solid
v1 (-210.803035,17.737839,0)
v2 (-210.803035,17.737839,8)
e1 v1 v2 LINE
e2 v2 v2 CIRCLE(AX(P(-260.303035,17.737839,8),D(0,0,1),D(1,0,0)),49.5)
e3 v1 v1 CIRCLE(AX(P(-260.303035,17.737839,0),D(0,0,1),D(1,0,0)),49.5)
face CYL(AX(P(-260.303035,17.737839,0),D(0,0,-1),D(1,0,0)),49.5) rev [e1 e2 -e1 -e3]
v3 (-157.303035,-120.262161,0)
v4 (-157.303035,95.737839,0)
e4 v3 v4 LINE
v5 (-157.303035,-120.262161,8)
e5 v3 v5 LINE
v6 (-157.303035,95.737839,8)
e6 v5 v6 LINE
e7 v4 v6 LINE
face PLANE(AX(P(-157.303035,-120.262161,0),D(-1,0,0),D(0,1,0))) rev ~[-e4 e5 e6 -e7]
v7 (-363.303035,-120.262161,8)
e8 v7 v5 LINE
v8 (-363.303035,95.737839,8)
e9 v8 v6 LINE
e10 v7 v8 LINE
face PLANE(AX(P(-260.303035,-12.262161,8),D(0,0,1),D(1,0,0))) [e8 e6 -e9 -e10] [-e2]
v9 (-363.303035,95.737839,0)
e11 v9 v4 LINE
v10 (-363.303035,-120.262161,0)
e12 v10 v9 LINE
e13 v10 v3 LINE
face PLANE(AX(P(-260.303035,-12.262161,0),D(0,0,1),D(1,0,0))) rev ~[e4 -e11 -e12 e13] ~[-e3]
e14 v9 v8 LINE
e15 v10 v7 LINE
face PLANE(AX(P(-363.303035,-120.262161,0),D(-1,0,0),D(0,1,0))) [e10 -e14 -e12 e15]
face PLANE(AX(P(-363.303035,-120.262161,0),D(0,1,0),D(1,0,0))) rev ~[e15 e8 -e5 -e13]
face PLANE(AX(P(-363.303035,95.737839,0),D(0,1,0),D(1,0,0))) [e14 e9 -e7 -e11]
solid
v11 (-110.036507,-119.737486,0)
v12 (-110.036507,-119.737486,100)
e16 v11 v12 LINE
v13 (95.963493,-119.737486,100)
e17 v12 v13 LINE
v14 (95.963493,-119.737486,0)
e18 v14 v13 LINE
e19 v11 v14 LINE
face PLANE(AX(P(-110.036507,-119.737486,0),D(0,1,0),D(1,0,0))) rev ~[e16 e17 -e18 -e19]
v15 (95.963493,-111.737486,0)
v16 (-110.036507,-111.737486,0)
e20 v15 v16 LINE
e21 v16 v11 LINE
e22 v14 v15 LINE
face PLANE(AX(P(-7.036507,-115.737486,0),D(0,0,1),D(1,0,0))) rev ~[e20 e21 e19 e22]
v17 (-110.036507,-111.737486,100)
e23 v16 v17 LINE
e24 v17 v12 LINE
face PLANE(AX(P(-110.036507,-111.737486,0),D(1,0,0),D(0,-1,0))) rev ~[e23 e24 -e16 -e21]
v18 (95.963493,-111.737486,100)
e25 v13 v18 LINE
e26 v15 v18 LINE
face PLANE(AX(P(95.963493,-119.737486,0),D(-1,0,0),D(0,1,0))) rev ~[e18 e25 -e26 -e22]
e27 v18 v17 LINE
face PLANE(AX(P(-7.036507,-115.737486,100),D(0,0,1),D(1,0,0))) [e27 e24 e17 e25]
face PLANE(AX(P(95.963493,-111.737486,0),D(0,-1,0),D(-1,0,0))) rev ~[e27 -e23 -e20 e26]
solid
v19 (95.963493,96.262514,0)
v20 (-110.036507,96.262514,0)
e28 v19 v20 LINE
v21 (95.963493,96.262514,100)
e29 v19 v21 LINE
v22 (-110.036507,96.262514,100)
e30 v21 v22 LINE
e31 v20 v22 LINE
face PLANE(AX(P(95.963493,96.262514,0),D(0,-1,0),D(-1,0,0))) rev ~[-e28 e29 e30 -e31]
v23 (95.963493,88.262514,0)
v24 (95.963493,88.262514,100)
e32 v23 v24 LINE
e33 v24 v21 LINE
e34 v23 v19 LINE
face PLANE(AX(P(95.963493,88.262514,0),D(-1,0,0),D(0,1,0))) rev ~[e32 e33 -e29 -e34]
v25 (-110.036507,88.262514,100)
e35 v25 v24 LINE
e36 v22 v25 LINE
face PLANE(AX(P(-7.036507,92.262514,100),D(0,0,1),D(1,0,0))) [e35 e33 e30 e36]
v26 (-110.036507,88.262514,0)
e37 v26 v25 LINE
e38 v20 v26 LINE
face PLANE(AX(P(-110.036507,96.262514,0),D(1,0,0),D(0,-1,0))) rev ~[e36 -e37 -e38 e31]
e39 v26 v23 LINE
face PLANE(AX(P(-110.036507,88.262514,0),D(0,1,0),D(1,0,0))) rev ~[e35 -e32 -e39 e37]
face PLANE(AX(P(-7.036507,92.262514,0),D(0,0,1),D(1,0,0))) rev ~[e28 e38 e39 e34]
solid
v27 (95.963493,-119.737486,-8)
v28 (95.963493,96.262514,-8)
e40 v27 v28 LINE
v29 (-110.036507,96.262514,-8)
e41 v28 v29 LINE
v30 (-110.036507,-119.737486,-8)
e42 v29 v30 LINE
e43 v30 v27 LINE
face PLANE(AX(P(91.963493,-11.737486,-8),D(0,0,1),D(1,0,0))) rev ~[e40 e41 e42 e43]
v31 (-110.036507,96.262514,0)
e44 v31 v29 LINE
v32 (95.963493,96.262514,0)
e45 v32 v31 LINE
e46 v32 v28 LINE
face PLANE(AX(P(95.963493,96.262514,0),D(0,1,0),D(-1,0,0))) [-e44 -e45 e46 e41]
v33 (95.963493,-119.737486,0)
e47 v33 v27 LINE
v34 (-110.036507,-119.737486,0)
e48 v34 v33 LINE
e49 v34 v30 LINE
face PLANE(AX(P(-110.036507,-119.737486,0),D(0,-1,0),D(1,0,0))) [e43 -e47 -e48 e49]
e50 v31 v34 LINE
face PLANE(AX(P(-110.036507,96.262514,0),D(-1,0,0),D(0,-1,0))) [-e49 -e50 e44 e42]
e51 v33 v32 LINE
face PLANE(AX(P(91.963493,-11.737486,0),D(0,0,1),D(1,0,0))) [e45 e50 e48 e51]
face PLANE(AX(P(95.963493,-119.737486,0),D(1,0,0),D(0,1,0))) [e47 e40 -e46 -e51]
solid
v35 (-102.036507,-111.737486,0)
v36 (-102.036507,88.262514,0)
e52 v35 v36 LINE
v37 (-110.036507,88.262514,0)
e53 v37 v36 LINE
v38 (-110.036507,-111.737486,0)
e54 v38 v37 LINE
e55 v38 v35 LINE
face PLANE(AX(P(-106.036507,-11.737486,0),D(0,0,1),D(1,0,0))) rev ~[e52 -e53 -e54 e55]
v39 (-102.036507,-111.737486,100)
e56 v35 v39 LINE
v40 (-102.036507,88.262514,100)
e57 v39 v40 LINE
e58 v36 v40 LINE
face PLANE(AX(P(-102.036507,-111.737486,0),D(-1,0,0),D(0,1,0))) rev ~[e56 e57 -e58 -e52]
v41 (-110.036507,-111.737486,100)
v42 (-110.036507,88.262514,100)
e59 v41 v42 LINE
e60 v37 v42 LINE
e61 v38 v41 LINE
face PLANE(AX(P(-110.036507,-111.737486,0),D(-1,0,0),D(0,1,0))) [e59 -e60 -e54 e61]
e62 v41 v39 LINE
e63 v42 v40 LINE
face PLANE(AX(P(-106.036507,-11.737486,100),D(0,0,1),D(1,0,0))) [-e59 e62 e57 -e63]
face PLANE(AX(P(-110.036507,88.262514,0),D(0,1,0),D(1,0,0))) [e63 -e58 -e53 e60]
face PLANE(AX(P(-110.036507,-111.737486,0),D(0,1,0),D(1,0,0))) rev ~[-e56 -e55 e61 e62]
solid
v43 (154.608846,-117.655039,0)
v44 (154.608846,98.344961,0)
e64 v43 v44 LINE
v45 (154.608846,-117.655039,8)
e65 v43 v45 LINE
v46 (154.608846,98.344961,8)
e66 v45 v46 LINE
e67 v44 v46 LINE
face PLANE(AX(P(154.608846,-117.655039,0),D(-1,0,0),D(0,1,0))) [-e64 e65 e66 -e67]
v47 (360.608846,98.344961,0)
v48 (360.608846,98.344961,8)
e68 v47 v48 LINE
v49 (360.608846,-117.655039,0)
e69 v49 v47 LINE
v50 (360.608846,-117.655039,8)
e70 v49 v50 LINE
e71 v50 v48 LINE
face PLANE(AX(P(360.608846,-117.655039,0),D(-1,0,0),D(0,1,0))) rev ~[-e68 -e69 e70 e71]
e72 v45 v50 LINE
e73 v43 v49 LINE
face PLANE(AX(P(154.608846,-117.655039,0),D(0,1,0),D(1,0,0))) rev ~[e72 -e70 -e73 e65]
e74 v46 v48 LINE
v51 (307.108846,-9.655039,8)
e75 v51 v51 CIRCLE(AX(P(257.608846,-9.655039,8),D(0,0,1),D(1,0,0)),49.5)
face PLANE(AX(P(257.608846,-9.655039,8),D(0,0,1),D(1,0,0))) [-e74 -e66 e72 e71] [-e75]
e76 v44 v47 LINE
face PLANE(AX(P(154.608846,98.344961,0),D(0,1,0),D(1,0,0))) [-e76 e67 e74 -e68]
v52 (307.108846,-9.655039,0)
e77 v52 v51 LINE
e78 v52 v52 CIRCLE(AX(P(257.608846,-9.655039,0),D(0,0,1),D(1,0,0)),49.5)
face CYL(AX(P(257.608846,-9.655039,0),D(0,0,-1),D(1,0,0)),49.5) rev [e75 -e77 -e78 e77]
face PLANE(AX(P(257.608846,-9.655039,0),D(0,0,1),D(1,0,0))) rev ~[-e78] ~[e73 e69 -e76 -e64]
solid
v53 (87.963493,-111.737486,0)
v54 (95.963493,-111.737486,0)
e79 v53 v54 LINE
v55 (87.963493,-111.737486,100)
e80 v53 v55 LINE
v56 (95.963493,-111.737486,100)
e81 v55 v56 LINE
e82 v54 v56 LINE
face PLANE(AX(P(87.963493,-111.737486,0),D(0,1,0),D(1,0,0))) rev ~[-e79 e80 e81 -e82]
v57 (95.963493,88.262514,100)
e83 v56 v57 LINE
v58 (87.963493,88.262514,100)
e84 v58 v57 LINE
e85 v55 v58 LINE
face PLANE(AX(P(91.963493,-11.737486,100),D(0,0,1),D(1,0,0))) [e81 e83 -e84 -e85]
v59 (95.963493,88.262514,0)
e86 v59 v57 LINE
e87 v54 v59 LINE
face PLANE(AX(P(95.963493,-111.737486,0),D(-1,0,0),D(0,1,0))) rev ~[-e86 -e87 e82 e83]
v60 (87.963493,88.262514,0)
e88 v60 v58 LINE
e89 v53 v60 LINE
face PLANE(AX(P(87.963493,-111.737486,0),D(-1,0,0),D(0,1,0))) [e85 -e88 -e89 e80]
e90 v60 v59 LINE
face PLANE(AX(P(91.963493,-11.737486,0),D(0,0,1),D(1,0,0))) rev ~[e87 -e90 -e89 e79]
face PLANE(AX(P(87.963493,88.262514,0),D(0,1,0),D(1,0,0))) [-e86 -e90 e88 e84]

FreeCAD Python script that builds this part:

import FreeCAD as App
import Part
import Sketcher
Q = App.Units.Quantity

doc = App.newDocument("Part")
body = doc.addObject("PartDesign::Body", "Body")

sketch1 = body.newObject("Sketcher::SketchObject", "Sketch")
sketch1.AttachmentSupport = (doc.getObject("XY_Plane"), [""])
sketch1.MapMode = "FlatFace"
sketch1.addGeometry([
    Part.LineSegment(App.Vector(-110, 88, 0), App.Vector(96, 88, 0)),
    Part.LineSegment(App.Vector(96, 88, 0), App.Vector(96, 96, 0)),
    Part.LineSegment(App.Vector(96, 96, 0), App.Vector(-110, 96, 0)),
    Part.LineSegment(App.Vector(-110, 96, 0), App.Vector(-110, 88, 0)),
], False)
sketch1.addConstraint([
    Sketcher.Constraint("Coincident", 0, 2, 1, 1),
    Sketcher.Constraint("Coincident", 1, 2, 2, 1),
    Sketcher.Constraint("Coincident", 2, 2, 3, 1),
    Sketcher.Constraint("Coincident", 3, 2, 0, 1),
    Sketcher.Constraint("Horizontal", 0),
    Sketcher.Constraint("Vertical", 1),
    Sketcher.Constraint("Horizontal", 2),
    Sketcher.Constraint("Vertical", 3),
    Sketcher.Constraint("DistanceX", 0, 1, 0, 2, Q("206 mm")),
    Sketcher.Constraint("DistanceY", 1, 1, 1, 2, Q("8 mm")),
    Sketcher.Constraint("DistanceX", -1, 1, 0, 2, Q("95.963493 mm")),
    Sketcher.Constraint("DistanceY", -1, 1, 0, 2, Q("88.262514 mm")),
])
pad1 = body.newObject("PartDesign::Pad", "Pad")
pad1.Profile = sketch1
pad1.Length = 100
body2 = doc.addObject("PartDesign::Body", "Body001")

sketch2 = body2.newObject("Sketcher::SketchObject", "Sketch001")
sketch2.AttachmentSupport = (doc.getObject("XY_Plane001"), [""])
sketch2.MapMode = "FlatFace"
sketch2.addGeometry([
    Part.LineSegment(App.Vector(-110, -112, 0), App.Vector(-110, -120, 0)),
    Part.LineSegment(App.Vector(-110, -120, 0), App.Vector(96, -120, 0)),
    Part.LineSegment(App.Vector(96, -120, 0), App.Vector(96, -112, 0)),
    Part.LineSegment(App.Vector(96, -112, 0), App.Vector(-110, -112, 0)),
], False)
sketch2.addConstraint([
    Sketcher.Constraint("Coincident", 0, 2, 1, 1),
    Sketcher.Constraint("Coincident", 1, 2, 2, 1),
    Sketcher.Constraint("Coincident", 2, 2, 3, 1),
    Sketcher.Constraint("Coincident", 3, 2, 0, 1),
    Sketcher.Constraint("Vertical", 0),
    Sketcher.Constraint("Horizontal", 1),
    Sketcher.Constraint("Vertical", 2),
    Sketcher.Constraint("Horizontal", 3),
    Sketcher.Constraint("DistanceX", 1, 1, 1, 2, Q("206 mm")),
    Sketcher.Constraint("DistanceY", 0, 2, 0, 1, Q("8 mm")),
    Sketcher.Constraint("DistanceX", 0, 2, -1, 1, Q("110.036507 mm")),
    Sketcher.Constraint("DistanceY", 0, 2, -1, 1, Q("119.737486 mm")),
])
pad2 = body2.newObject("PartDesign::Pad", "Pad001")
pad2.Profile = sketch2
pad2.Length = 100
body3 = doc.addObject("PartDesign::Body", "Body002")

sketch3 = body3.newObject("Sketcher::SketchObject", "Sketch002")
sketch3.AttachmentSupport = (doc.getObject("XY_Plane002"), [""])
sketch3.MapMode = "FlatFace"
sketch3.addGeometry([
    Part.LineSegment(App.Vector(-110, 88, 0), App.Vector(-110, -112, 0)),
    Part.LineSegment(App.Vector(-110, -112, 0), App.Vector(-102, -112, 0)),
    Part.LineSegment(App.Vector(-102, -112, 0), App.Vector(-102, 88, 0)),
    Part.LineSegment(App.Vector(-102, 88, 0), App.Vector(-110, 88, 0)),
], False)
sketch3.addConstraint([
    Sketcher.Constraint("Coincident", 0, 2, 1, 1),
    Sketcher.Constraint("Coincident", 1, 2, 2, 1),
    Sketcher.Constraint("Coincident", 2, 2, 3, 1),
    Sketcher.Constraint("Coincident", 3, 2, 0, 1),
    Sketcher.Constraint("Vertical", 0),
    Sketcher.Constraint("Horizontal", 1),
    Sketcher.Constraint("Vertical", 2),
    Sketcher.Constraint("Horizontal", 3),
    Sketcher.Constraint("DistanceX", 1, 1, 1, 2, Q("8 mm")),
    Sketcher.Constraint("DistanceY", 0, 2, 0, 1, Q("200 mm")),
    Sketcher.Constraint("DistanceX", 0, 2, -1, 1, Q("110.036507 mm")),
    Sketcher.Constraint("DistanceY", 0, 2, -1, 1, Q("111.737486 mm")),
])
pad3 = body3.newObject("PartDesign::Pad", "Pad002")
pad3.Profile = sketch3
pad3.Length = 100
body4 = doc.addObject("PartDesign::Body", "Body003")

sketch4 = body4.newObject("Sketcher::SketchObject", "Sketch003")
sketch4.AttachmentSupport = (doc.getObject("XY_Plane003"), [""])
sketch4.MapMode = "FlatFace"
sketch4.addGeometry([
    Part.LineSegment(App.Vector(88, 88, 0), App.Vector(88, -112, 0)),
    Part.LineSegment(App.Vector(88, -112, 0), App.Vector(96, -112, 0)),
    Part.LineSegment(App.Vector(96, -112, 0), App.Vector(96, 88, 0)),
    Part.LineSegment(App.Vector(96, 88, 0), App.Vector(88, 88, 0)),
], False)
sketch4.addConstraint([
    Sketcher.Constraint("Coincident", 0, 2, 1, 1),
    Sketcher.Constraint("Coincident", 1, 2, 2, 1),
    Sketcher.Constraint("Coincident", 2, 2, 3, 1),
    Sketcher.Constraint("Coincident", 3, 2, 0, 1),
    Sketcher.Constraint("Vertical", 0),
    Sketcher.Constraint("Horizontal", 1),
    Sketcher.Constraint("Vertical", 2),
    Sketcher.Constraint("Horizontal", 3),
    Sketcher.Constraint("DistanceX", 1, 1, 1, 2, Q("8 mm")),
    Sketcher.Constraint("DistanceY", 0, 2, 0, 1, Q("200 mm")),
    Sketcher.Constraint("DistanceX", -1, 1, 0, 2, Q("87.963493 mm")),
    Sketcher.Constraint("DistanceY", 0, 2, -1, 1, Q("111.737486 mm")),
])
pad4 = body4.newObject("PartDesign::Pad", "Pad003")
pad4.Profile = sketch4
pad4.Length = 100
body5 = doc.addObject("PartDesign::Body", "Body004")

sketch5 = body5.newObject("Sketcher::SketchObject", "Sketch004")
sketch5.AttachmentSupport = (doc.getObject("XY_Plane004"), [""])
sketch5.MapMode = "FlatFace"
sketch5.addGeometry([
    Part.LineSegment(App.Vector(96, 96, 0), App.Vector(-110, 96, 0)),
    Part.LineSegment(App.Vector(-110, 96, 0), App.Vector(-110, -120, 0)),
    Part.LineSegment(App.Vector(-110, -120, 0), App.Vector(96, -120, 0)),
    Part.LineSegment(App.Vector(96, -120, 0), App.Vector(96, 96, 0)),
], False)
sketch5.addConstraint([
    Sketcher.Constraint("Coincident", 0, 2, 1, 1),
    Sketcher.Constraint("Coincident", 1, 2, 2, 1),
    Sketcher.Constraint("Coincident", 2, 2, 3, 1),
    Sketcher.Constraint("Coincident", 3, 2, 0, 1),
    Sketcher.Constraint("Horizontal", 0),
    Sketcher.Constraint("Vertical", 1),
    Sketcher.Constraint("Horizontal", 2),
    Sketcher.Constraint("Vertical", 3),
    Sketcher.Constraint("DistanceX", 0, 2, 0, 1, Q("206 mm")),
    Sketcher.Constraint("DistanceY", 1, 2, 1, 1, Q("216 mm")),
    Sketcher.Constraint("DistanceX", 0, 2, -1, 1, Q("110.036507 mm")),
    Sketcher.Constraint("DistanceY", -1, 1, 0, 2, Q("96.262514 mm")),
])
pad5 = body5.newObject("PartDesign::Pad", "Pad004")
pad5.Profile = sketch5
pad5.Length = 8
pad5.Reversed = True
body6 = doc.addObject("PartDesign::Body", "Body005")

sketch6 = body6.newObject("Sketcher::SketchObject", "Sketch005")
sketch6.AttachmentSupport = (doc.getObject("XY_Plane005"), [""])
sketch6.MapMode = "FlatFace"
sketch6.addGeometry([
    Part.LineSegment(App.Vector(-363, 96, 0), App.Vector(-363, -120, 0)),
    Part.LineSegment(App.Vector(-363, -120, 0), App.Vector(-157, -120, 0)),
    Part.LineSegment(App.Vector(-157, -120, 0), App.Vector(-157, 96, 0)),
    Part.LineSegment(App.Vector(-157, 96, 0), App.Vector(-363, 96, 0)),
    Part.Circle(App.Vector(-260, 18, 0), App.Vector(0, 0, 1), 50),
], False)
sketch6.addConstraint([
    Sketcher.Constraint("Coincident", 0, 2, 1, 1),
    Sketcher.Constraint("Coincident", 1, 2, 2, 1),
    Sketcher.Constraint("Coincident", 2, 2, 3, 1),
    Sketcher.Constraint("Coincident", 3, 2, 0, 1),
    Sketcher.Constraint("Vertical", 0),
    Sketcher.Constraint("Horizontal", 1),
    Sketcher.Constraint("Vertical", 2),
    Sketcher.Constraint("Horizontal", 3),
    Sketcher.Constraint("Diameter", 4, Q("99 mm")),
    Sketcher.Constraint("DistanceX", 1, 1, 1, 2, Q("206 mm")),
    Sketcher.Constraint("DistanceY", 0, 2, 0, 1, Q("216 mm")),
    Sketcher.Constraint("DistanceX", 0, 2, 4, 3, Q("103 mm")),
    Sketcher.Constraint("DistanceY", 0, 2, 4, 3, Q("138 mm")),
    Sketcher.Constraint("DistanceY", -1, 1, 4, 3, Q("17.737839 mm")),
    Sketcher.Constraint("DistanceX", 4, 3, -1, 1, Q("260.303035 mm")),
])
pad6 = body6.newObject("PartDesign::Pad", "Pad005")
pad6.Profile = sketch6
pad6.Length = 8
body7 = doc.addObject("PartDesign::Body", "Body006")

sketch7 = body7.newObject("Sketcher::SketchObject", "Sketch006")
sketch7.AttachmentSupport = (doc.getObject("XY_Plane006"), [""])
sketch7.MapMode = "FlatFace"
sketch7.addGeometry([
    Part.LineSegment(App.Vector(155, 98, 0), App.Vector(155, -118, 0)),
    Part.LineSegment(App.Vector(155, -118, 0), App.Vector(361, -118, 0)),
    Part.LineSegment(App.Vector(361, -118, 0), App.Vector(361, 98, 0)),
    Part.LineSegment(App.Vector(361, 98, 0), App.Vector(155, 98, 0)),
    Part.Circle(App.Vector(258, -10, 0), App.Vector(0, 0, 1), 50),
], False)
sketch7.addConstraint([
    Sketcher.Constraint("Coincident", 0, 2, 1, 1),
    Sketcher.Constraint("Coincident", 1, 2, 2, 1),
    Sketcher.Constraint("Coincident", 2, 2, 3, 1),
    Sketcher.Constraint("Coincident", 3, 2, 0, 1),
    Sketcher.Constraint("Vertical", 0),
    Sketcher.Constraint("Horizontal", 1),
    Sketcher.Constraint("Vertical", 2),
    Sketcher.Constraint("Horizontal", 3),
    Sketcher.Constraint("Diameter", 4, Q("99 mm")),
    Sketcher.Constraint("DistanceX", 1, 1, 1, 2, Q("206 mm")),
    Sketcher.Constraint("DistanceY", 0, 2, 0, 1, Q("216 mm")),
    Sketcher.Constraint("DistanceX", 0, 2, 4, 3, Q("103 mm")),
    Sketcher.Constraint("DistanceY", 0, 2, 4, 3, Q("108 mm")),
    Sketcher.Constraint("DistanceY", 4, 3, -1, 1, Q("9.655039 mm")),
    Sketcher.Constraint("DistanceX", -1, 1, 4, 3, Q("257.608846 mm")),
])
pad7 = body7.newObject("PartDesign::Pad", "Pad006")
pad7.Profile = sketch7
pad7.Length = 8

doc.recompute()
